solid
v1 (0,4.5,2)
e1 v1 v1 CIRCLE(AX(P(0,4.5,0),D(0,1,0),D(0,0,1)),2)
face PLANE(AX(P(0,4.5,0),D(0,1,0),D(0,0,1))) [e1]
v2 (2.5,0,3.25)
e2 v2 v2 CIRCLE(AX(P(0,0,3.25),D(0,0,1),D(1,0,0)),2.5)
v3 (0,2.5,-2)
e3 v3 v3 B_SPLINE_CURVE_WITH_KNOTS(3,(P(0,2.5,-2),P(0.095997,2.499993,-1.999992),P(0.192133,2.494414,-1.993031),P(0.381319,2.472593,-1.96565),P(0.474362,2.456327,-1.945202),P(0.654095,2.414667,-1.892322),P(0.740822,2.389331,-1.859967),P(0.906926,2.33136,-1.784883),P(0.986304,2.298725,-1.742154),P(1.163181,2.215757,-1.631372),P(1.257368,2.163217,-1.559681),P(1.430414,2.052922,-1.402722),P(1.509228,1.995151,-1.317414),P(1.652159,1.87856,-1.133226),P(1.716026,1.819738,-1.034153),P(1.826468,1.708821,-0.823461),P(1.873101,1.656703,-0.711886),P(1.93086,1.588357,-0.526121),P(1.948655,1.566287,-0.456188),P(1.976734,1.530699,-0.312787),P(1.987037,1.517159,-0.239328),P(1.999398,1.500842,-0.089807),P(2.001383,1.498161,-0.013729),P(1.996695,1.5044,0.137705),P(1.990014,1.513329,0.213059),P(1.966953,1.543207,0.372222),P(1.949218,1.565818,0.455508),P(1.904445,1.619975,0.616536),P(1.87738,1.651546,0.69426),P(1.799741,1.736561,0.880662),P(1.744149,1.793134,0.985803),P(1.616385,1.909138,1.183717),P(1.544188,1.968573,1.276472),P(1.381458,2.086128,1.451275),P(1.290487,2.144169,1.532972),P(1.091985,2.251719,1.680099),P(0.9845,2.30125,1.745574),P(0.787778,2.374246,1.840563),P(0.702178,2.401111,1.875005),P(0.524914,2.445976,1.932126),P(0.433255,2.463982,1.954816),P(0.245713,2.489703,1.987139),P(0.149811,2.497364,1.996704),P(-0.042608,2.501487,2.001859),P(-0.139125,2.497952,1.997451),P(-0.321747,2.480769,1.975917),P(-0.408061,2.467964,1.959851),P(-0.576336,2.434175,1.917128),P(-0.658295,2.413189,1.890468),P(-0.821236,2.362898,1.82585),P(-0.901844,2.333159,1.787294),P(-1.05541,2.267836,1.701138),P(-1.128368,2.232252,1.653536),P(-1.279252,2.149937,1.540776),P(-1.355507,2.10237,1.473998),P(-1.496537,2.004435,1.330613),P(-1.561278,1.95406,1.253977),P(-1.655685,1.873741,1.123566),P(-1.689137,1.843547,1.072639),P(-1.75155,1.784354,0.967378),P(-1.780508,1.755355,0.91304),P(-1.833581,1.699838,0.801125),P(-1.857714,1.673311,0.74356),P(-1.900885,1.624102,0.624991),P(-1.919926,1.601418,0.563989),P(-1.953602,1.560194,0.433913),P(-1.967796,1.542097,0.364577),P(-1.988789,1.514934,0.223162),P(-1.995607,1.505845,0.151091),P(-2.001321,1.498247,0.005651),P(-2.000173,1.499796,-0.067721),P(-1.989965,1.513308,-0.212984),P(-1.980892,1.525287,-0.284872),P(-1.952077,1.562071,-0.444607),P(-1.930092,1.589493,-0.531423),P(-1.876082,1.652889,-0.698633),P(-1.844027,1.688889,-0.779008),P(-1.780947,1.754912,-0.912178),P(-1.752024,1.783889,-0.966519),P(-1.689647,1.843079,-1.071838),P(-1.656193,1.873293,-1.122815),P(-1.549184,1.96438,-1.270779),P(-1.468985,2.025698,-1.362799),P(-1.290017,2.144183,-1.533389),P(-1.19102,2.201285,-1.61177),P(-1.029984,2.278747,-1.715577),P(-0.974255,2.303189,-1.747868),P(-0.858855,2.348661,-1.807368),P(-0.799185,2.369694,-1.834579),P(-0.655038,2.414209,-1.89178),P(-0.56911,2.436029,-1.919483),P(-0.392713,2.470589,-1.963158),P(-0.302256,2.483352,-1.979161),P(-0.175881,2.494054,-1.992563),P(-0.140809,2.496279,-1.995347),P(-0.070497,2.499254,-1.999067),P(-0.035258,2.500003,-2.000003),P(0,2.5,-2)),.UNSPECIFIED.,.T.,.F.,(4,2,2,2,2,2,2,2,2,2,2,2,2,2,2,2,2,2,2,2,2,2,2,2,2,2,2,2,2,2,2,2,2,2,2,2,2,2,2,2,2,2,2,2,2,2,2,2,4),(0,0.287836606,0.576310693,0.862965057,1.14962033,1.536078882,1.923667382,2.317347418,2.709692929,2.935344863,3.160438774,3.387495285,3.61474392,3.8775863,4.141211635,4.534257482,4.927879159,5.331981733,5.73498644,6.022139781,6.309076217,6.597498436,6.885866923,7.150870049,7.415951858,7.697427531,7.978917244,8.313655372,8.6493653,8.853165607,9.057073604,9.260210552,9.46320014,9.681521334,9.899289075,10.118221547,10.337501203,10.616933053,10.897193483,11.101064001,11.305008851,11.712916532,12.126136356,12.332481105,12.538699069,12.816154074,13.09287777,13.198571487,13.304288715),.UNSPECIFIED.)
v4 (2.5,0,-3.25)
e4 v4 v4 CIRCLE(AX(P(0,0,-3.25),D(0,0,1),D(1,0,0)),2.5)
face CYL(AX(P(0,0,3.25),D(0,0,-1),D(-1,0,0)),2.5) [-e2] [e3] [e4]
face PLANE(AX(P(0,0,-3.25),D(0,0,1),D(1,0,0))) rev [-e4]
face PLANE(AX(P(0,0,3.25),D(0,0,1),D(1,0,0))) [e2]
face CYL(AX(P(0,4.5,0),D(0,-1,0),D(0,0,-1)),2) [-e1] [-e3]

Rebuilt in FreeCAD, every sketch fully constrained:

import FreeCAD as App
import Part
import Sketcher
from FreeCAD import Vector
Q = App.Units.Quantity

doc = App.newDocument("Part")
body = doc.addObject("PartDesign::Body", "Body")

# Sketch on XZ plane
sketch1 = body.newObject("Sketcher::SketchObject", "Sketch")
sketch1.AttachmentSupport = (doc.getObject("XZ_Plane"), [""])
sketch1.MapMode = "FlatFace"
sketch1.addGeometry(Part.Circle(Vector(0, 0, 0), Vector(0, 0, 1), 2), False)
sketch1.addConstraint(Sketcher.Constraint("Coincident", 0, 3, -1, 1))
sketch1.addConstraint(Sketcher.Constraint("Diameter", 0, Q("4 mm")))
pad1 = body.newObject("PartDesign::Pad", "Pad")
pad1.Profile = sketch1
pad1.Length = 4.5
pad1.Reversed = True

# Sketch on XY plane
sketch2 = body.newObject("Sketcher::SketchObject", "Sketch001")
sketch2.AttachmentSupport = (doc.getObject("XY_Plane"), [""])
sketch2.MapMode = "FlatFace"
sketch2.addGeometry(Part.Circle(Vector(0, 0, 0), Vector(0, 0, 1), 2.5), False)
sketch2.addConstraint(Sketcher.Constraint("Coincident", 0, 3, -1, 1))
sketch2.addConstraint(Sketcher.Constraint("Diameter", 0, Q("5 mm")))
pad2 = body.newObject("PartDesign::Pad", "Pad001")
pad2.Profile = sketch2
pad2.Length = 6.5
pad2.Midplane = True

doc.recompute()
